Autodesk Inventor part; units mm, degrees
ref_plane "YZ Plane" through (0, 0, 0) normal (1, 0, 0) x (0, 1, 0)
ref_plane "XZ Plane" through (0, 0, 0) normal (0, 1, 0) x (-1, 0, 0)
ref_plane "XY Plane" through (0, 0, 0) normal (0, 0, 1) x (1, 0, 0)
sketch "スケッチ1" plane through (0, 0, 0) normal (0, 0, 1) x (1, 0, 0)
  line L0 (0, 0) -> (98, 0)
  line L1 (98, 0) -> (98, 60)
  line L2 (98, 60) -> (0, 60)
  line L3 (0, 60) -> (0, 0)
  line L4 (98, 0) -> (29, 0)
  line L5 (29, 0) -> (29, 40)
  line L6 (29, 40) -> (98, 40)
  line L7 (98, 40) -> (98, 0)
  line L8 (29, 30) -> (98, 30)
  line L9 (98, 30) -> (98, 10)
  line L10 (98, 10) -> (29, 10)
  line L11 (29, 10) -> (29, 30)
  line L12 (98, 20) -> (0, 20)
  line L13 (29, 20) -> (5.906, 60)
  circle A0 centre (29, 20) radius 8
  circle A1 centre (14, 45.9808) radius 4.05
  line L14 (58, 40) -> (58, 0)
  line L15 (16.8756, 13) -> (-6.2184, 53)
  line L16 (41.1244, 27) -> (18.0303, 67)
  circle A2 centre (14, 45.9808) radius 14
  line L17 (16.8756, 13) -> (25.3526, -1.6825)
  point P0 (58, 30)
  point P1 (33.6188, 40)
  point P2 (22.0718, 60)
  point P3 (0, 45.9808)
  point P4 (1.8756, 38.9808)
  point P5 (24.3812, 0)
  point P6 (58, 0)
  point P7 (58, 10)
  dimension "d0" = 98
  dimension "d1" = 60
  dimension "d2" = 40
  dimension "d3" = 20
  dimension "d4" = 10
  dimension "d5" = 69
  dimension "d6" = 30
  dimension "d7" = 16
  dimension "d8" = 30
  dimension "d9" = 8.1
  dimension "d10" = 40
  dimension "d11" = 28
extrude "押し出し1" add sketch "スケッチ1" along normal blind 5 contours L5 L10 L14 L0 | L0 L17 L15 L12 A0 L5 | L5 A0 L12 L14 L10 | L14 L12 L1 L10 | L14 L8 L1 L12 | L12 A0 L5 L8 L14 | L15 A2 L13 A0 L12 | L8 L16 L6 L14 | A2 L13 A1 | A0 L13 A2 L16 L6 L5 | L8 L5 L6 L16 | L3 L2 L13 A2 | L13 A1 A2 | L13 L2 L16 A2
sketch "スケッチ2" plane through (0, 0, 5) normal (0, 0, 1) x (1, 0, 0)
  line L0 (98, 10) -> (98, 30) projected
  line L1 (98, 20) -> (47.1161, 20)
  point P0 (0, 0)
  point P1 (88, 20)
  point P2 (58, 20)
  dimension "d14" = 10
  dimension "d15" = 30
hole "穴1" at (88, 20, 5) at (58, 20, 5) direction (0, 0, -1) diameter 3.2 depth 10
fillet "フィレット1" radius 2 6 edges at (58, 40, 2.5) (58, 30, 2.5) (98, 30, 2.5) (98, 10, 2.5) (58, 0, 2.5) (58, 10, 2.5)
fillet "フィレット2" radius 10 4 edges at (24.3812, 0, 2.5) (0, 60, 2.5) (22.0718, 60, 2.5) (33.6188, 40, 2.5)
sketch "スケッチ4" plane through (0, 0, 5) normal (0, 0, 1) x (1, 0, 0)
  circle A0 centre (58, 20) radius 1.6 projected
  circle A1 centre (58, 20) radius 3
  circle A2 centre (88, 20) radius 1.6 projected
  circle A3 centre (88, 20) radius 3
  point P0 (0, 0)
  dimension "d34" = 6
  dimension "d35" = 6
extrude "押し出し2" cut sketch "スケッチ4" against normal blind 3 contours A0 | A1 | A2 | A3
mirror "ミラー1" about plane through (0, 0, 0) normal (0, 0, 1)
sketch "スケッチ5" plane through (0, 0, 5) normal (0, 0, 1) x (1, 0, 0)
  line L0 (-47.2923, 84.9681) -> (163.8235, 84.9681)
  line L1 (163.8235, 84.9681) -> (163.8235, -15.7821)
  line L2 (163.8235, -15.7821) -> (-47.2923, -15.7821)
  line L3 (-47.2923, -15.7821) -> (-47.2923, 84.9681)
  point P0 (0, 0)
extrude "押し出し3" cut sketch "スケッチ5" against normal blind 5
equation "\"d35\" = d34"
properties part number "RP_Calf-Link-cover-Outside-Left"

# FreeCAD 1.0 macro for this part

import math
import FreeCAD as App
import Part
import Sketcher

V = App.Vector
Q = App.Units.Quantity


def edges_at(feature, points):
    """Names of the edges that pass closest to the given points."""
    edges = feature.Shape.Edges
    near = lambda p: min(range(len(edges)), key=lambda i: edges[i].distToShape(Part.Vertex(*p))[0])
    return sorted({f"Edge{near(p) + 1}" for p in points})


def add_polygon(sketch, points):
    """Adds a closed chain of lines whose ends are joined by coincident constraints."""
    first, n = sketch.GeometryCount, len(points)
    for a, b in zip(points, points[1:] + points[:1]):
        sketch.addGeometry(Part.LineSegment(App.Vector(*a, 0), App.Vector(*b, 0)), False)
    for i in range(n):
        sketch.addConstraint(Sketcher.Constraint("Coincident", first + i, 2, first + (i + 1) % n, 1))

doc = App.newDocument("Part")
body = doc.addObject("PartDesign::Body", "Body")

sketch1 = doc.addObject("Sketcher::SketchObject", "Sketch")
body.addObject(sketch1)
sketch1.AttachmentSupport = (doc.XY_Plane, [""])
sketch1.MapMode = "FlatFace"
sketch1.addGeometry(Part.LineSegment(V(58, 0, 0), V(58, 10, 0)), False)
sketch1.addGeometry(Part.LineSegment(V(58, 10, 0), V(98, 10, 0)), False)
sketch1.addGeometry(Part.LineSegment(V(98, 10, 0), V(98, 30, 0)), False)
sketch1.addGeometry(Part.LineSegment(V(98, 30, 0), V(58, 30, 0)), False)
sketch1.addGeometry(Part.LineSegment(V(58, 30, 0), V(58, 40, 0)), False)
sketch1.addGeometry(Part.LineSegment(V(58, 40, 0), V(33.6, 40, 0)), False)
sketch1.addGeometry(Part.LineSegment(V(33.6, 40, 0), V(22.1, 60, 0)), False)
sketch1.addGeometry(Part.LineSegment(V(22.1, 60, 0), V(0, 60, 0)), False)
sketch1.addGeometry(Part.LineSegment(V(0, 60, 0), V(0, 46, 0)), False)
sketch1.addGeometry(Part.ArcOfCircle(Part.Circle(V(14, 46, 0), V(0, 0, 1), 14), math.radians(180), math.radians(210)), False)
sketch1.addGeometry(Part.LineSegment(V(1.9, 39, 0), V(16.9, 13, 0)), False)
sketch1.addGeometry(Part.LineSegment(V(16.9, 13, 0), V(24.4, 0, 0)), False)
sketch1.addGeometry(Part.LineSegment(V(24.4, 0, 0), V(58, 0, 0)), False)
sketch1.addGeometry(Part.Circle(V(29, 20, 0), V(0, 0, 1), 8), False)
sketch1.addGeometry(Part.Circle(V(14, 46, 0), V(0, 0, 1), 4), False)
sketch1.addConstraint(Sketcher.Constraint("Coincident", 0, 2, 1, 1))
sketch1.addConstraint(Sketcher.Constraint("Coincident", 1, 2, 2, 1))
sketch1.addConstraint(Sketcher.Constraint("Coincident", 2, 2, 3, 1))
sketch1.addConstraint(Sketcher.Constraint("Coincident", 3, 2, 4, 1))
sketch1.addConstraint(Sketcher.Constraint("Coincident", 4, 2, 5, 1))
sketch1.addConstraint(Sketcher.Constraint("Coincident", 5, 2, 6, 1))
sketch1.addConstraint(Sketcher.Constraint("Coincident", 6, 2, 7, 1))
sketch1.addConstraint(Sketcher.Constraint("Coincident", 7, 2, 8, 1))
sketch1.addConstraint(Sketcher.Constraint("Tangent", 8, 2, 9, 1))
sketch1.addConstraint(Sketcher.Constraint("Tangent", 9, 2, 10, 1))
sketch1.addConstraint(Sketcher.Constraint("Coincident", 10, 2, 11, 1))
sketch1.addConstraint(Sketcher.Constraint("Coincident", 11, 2, 12, 1))
sketch1.addConstraint(Sketcher.Constraint("Coincident", 12, 2, 0, 1))
sketch1.addConstraint(Sketcher.Constraint("Vertical", 0))
sketch1.addConstraint(Sketcher.Constraint("Horizontal", 1))
sketch1.addConstraint(Sketcher.Constraint("Vertical", 2))
sketch1.addConstraint(Sketcher.Constraint("Horizontal", 3))
sketch1.addConstraint(Sketcher.Constraint("Vertical", 4))
sketch1.addConstraint(Sketcher.Constraint("Horizontal", 5))
sketch1.addConstraint(Sketcher.Constraint("Horizontal", 7))
sketch1.addConstraint(Sketcher.Constraint("Vertical", 8))
sketch1.addConstraint(Sketcher.Constraint("Horizontal", 12))
sketch1.addConstraint(Sketcher.Constraint("Coincident", 14, 3, 9, 3))
sketch1.addConstraint(Sketcher.Constraint("PointOnObject", 7, 2, -2))
sketch1.addConstraint(Sketcher.Constraint("PointOnObject", 11, 2, -1))
sketch1.addConstraint(Sketcher.Constraint("Parallel", 6, 10))
sketch1.addConstraint(Sketcher.Constraint("Parallel", 10, 11))
sketch1.addConstraint(Sketcher.Constraint("Vertical", 0, 2, 3, 2))
sketch1.addConstraint(Sketcher.Constraint("Equal", 0, 4))
sketch1.addConstraint(Sketcher.Constraint("Diameter", 13, Q("16 mm")))
sketch1.addConstraint(Sketcher.Constraint("Radius", 9, Q("14 mm")))
sketch1.addConstraint(Sketcher.Constraint("Diameter", 14, Q("8.1 mm")))
sketch1.addConstraint(Sketcher.Constraint("DistanceX", 1, 1, 1, 2, Q("40 mm")))
sketch1.addConstraint(Sketcher.Constraint("DistanceY", 0, 1, 0, 2, Q("10 mm")))
sketch1.addConstraint(Sketcher.Constraint("DistanceY", 2, 1, 2, 2, Q("20 mm")))
sketch1.addConstraint(Sketcher.Constraint("Angle", 10, Q("-60 deg")))
sketch1.addConstraint(Sketcher.Constraint("Distance", 10, Q("30 mm")))
sketch1.addConstraint(Sketcher.Constraint("DistanceY", -1, 1, 13, 3, Q("20 mm")))
sketch1.addConstraint(Sketcher.Constraint("DistanceX", -1, 1, 1, 2, Q("98 mm")))
sketch1.addConstraint(Sketcher.Constraint("DistanceY", -1, 1, 6, 2, Q("60 mm")))
sketch1.addConstraint(Sketcher.Constraint("DistanceX", 13, 3, 1, 2, Q("69 mm")))
sketch1.addConstraint(Sketcher.Constraint("DistanceY", -1, 1, 10, 2, Q("13 mm")))
sketch1.addConstraint(Sketcher.Constraint("DistanceX", 5, 2, 5, 1, Q("24.3812 mm")))
pad1 = doc.addObject("PartDesign::Pad", "Pad")
body.addObject(pad1)
pad1.Profile = sketch1
pad1.Length = 5

sketch2 = doc.addObject("Sketcher::SketchObject", "Sketch001")
body.addObject(sketch2)
sketch2.AttachmentSupport = (doc.XY_Plane, [""])
sketch2.MapMode = "FlatFace"
sketch2.AttachmentOffset = App.Placement(V(0, 0, 5), App.Rotation())
sketch2.addGeometry(Part.Circle(V(88, 20, 0), V(0, 0, 1), 1.6), False)
sketch2.addGeometry(Part.Circle(V(58, 20, 0), V(0, 0, 1), 1.6), False)
sketch2.addConstraint(Sketcher.Constraint("Equal", 0, 1))
sketch2.addConstraint(Sketcher.Constraint("Horizontal", 0, 3, 1, 3))
sketch2.addConstraint(Sketcher.Constraint("Diameter", 0, Q("3.2 mm")))
sketch2.addConstraint(Sketcher.Constraint("DistanceX", -1, 1, 0, 3, Q("88 mm")))
sketch2.addConstraint(Sketcher.Constraint("DistanceY", -1, 1, 0, 3, Q("20 mm")))
sketch2.addConstraint(Sketcher.Constraint("DistanceX", -1, 1, 1, 3, Q("58 mm")))
doc.recompute()
hole = doc.addObject("PartDesign::Hole", "Hole")
body.addObject(hole)
hole.Profile = sketch2
hole.ThreadType = "None"
hole.Diameter = 3.2
hole.DepthType = "Dimension"
hole.Depth = 10
hole.DrillPoint = "Flat"
doc.recompute()

fillet = doc.addObject("PartDesign::Fillet", "Fillet")
body.addObject(fillet)
fillet.Base = (hole, edges_at(hole, [
    (58, 40, 2.5),
    (58, 30, 2.5),
    (98, 30, 2.5),
    (98, 10, 2.5),
    (58, 0, 2.5),
    (58, 10, 2.5),
]))
fillet.Radius = 2
doc.recompute()

fillet2 = doc.addObject("PartDesign::Fillet", "Fillet001")
body.addObject(fillet2)
fillet2.Base = (fillet, edges_at(fillet, [
    (24.381, 0, 2.5),
    (0, 60, 2.5),
    (22.072, 60, 2.5),
    (33.619, 40, 2.5),
]))
fillet2.Radius = 10

sketch3 = doc.addObject("Sketcher::SketchObject", "Sketch002")
body.addObject(sketch3)
sketch3.AttachmentSupport = (doc.XY_Plane, [""])
sketch3.MapMode = "FlatFace"
sketch3.AttachmentOffset = App.Placement(V(0, 0, 5), App.Rotation())
sketch3.addGeometry(Part.Circle(V(58, 20, 0), V(0, 0, 1), 3), False)
sketch3.addGeometry(Part.Circle(V(88, 20, 0), V(0, 0, 1), 3), False)
sketch3.addConstraint(Sketcher.Constraint("Equal", 0, 1))
sketch3.addConstraint(Sketcher.Constraint("Horizontal", 0, 3, 1, 3))
sketch3.addConstraint(Sketcher.Constraint("Diameter", 0, Q("6 mm")))
sketch3.addConstraint(Sketcher.Constraint("DistanceX", -1, 1, 0, 3, Q("58 mm")))
sketch3.addConstraint(Sketcher.Constraint("DistanceY", -1, 1, 0, 3, Q("20 mm")))
sketch3.addConstraint(Sketcher.Constraint("DistanceX", -1, 1, 1, 3, Q("88 mm")))
pocket1 = doc.addObject("PartDesign::Pocket", "Pocket")
body.addObject(pocket1)
pocket1.Profile = sketch3
pocket1.Length = 3
doc.recompute()

mirrored = doc.addObject("PartDesign::Mirrored", "Mirrored")
body.addObject(mirrored)
mirrored.TransformMode = "Transform body"
mirrored.MirrorPlane = (doc.XY_Plane, [""])
body.Tip = mirrored

sketch4 = doc.addObject("Sketcher::SketchObject", "Sketch003")
body.addObject(sketch4)
sketch4.AttachmentSupport = (doc.XY_Plane, [""])
sketch4.MapMode = "FlatFace"
sketch4.AttachmentOffset = App.Placement(V(0, 0, 5), App.Rotation())
add_polygon(sketch4, [(164, 85), (-47, 85), (-47, -16), (164, -16)])
sketch4.addConstraint(Sketcher.Constraint("Horizontal", 0))
sketch4.addConstraint(Sketcher.Constraint("Vertical", 1))
sketch4.addConstraint(Sketcher.Constraint("Horizontal", 2))
sketch4.addConstraint(Sketcher.Constraint("Vertical", 3))
sketch4.addConstraint(Sketcher.Constraint("DistanceX", 0, 2, 0, 1, Q("211.1158 mm")))
sketch4.addConstraint(Sketcher.Constraint("DistanceY", 1, 2, 1, 1, Q("100.7502 mm")))
sketch4.addConstraint(Sketcher.Constraint("DistanceY", -1, 1, 0, 2, Q("84.968 mm")))
sketch4.addConstraint(Sketcher.Constraint("DistanceX", 0, 2, -1, 1, Q("47.2923 mm")))
pocket2 = doc.addObject("PartDesign::Pocket", "Pocket001")
body.addObject(pocket2)
pocket2.Profile = sketch4
pocket2.Length = 5

doc.recompute()
